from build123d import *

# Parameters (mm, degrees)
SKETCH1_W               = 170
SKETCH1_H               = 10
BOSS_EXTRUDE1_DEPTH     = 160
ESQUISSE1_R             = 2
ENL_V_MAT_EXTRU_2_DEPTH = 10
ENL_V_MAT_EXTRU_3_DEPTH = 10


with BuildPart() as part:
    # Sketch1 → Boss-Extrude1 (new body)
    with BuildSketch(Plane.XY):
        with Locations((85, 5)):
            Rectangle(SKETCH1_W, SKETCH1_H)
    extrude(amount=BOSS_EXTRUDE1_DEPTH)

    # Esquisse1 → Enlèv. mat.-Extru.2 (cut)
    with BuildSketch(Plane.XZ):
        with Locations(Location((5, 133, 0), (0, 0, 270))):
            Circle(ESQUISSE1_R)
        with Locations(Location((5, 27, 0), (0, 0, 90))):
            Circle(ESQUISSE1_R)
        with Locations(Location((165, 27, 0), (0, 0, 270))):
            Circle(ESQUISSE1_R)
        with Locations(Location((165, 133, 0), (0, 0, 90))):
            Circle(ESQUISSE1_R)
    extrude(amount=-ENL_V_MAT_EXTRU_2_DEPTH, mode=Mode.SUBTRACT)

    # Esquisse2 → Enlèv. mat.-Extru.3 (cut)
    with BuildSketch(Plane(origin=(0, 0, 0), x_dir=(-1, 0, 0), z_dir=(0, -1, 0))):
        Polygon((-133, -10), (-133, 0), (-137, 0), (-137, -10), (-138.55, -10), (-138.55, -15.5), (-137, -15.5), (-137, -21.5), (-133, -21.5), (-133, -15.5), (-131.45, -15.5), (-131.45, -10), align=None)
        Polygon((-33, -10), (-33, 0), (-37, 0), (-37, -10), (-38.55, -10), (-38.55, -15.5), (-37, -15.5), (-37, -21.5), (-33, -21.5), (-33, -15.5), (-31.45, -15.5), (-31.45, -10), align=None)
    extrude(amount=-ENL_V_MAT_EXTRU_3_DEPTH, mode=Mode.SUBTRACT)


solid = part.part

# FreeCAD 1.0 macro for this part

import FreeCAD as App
import Part
import Sketcher
Q = App.Units.Quantity


def add_polygon(sketch, points):
    """Adds a closed chain of lines whose ends are joined by coincident constraints."""
    first, n = sketch.GeometryCount, len(points)
    for a, b in zip(points, points[1:] + points[:1]):
        sketch.addGeometry(Part.LineSegment(App.Vector(*a, 0), App.Vector(*b, 0)), False)
    for i in range(n):
        sketch.addConstraint(Sketcher.Constraint("Coincident", first + i, 2, first + (i + 1) % n, 1))

doc = App.newDocument("Part")
body = doc.addObject("PartDesign::Body", "Body")

sketch1 = body.newObject("Sketcher::SketchObject", "Sketch")
sketch1.AttachmentSupport = (doc.getObject("XY_Plane"), [""])
sketch1.MapMode = "FlatFace"
add_polygon(sketch1, [(0, 10), (0, 0), (170, 0), (170, 10)])
sketch1.addConstraint(Sketcher.Constraint("Vertical", 0))
sketch1.addConstraint(Sketcher.Constraint("Horizontal", 1))
sketch1.addConstraint(Sketcher.Constraint("Vertical", 2))
sketch1.addConstraint(Sketcher.Constraint("Horizontal", 3))
sketch1.addConstraint(Sketcher.Constraint("Coincident", 0, 2, -1, 1))
sketch1.addConstraint(Sketcher.Constraint("DistanceX", 1, 1, 1, 2, Q("170 mm")))
sketch1.addConstraint(Sketcher.Constraint("DistanceY", 0, 2, 0, 1, Q("10 mm")))
pad1 = body.newObject("PartDesign::Pad", "Pad")
pad1.Profile = sketch1
pad1.Length = 160

sketch2 = body.newObject("Sketcher::SketchObject", "Sketch001")
sketch2.AttachmentSupport = (doc.getObject("XZ_Plane"), [""])
sketch2.MapMode = "FlatFace"
sketch2.addGeometry(Part.Circle(App.Vector(5, 133, 0), App.Vector(0, 0, 1), 2), False)
sketch2.addGeometry(Part.Circle(App.Vector(5, 27, 0), App.Vector(0, 0, 1), 2), False)
sketch2.addGeometry(Part.Circle(App.Vector(165, 27, 0), App.Vector(0, 0, 1), 2), False)
sketch2.addGeometry(Part.Circle(App.Vector(165, 133, 0), App.Vector(0, 0, 1), 2), False)
sketch2.addConstraint(Sketcher.Constraint("Equal", 0, 1))
sketch2.addConstraint(Sketcher.Constraint("Equal", 1, 2))
sketch2.addConstraint(Sketcher.Constraint("Equal", 2, 3))
sketch2.addConstraint(Sketcher.Constraint("Horizontal", 1, 3, 2, 3))
sketch2.addConstraint(Sketcher.Constraint("Horizontal", 0, 3, 3, 3))
sketch2.addConstraint(Sketcher.Constraint("Vertical", 0, 3, 1, 3))
sketch2.addConstraint(Sketcher.Constraint("Vertical", 2, 3, 3, 3))
sketch2.addConstraint(Sketcher.Constraint("Diameter", 0, Q("4 mm")))
sketch2.addConstraint(Sketcher.Constraint("DistanceX", -1, 1, 0, 3, Q("5 mm")))
sketch2.addConstraint(Sketcher.Constraint("DistanceY", -1, 1, 0, 3, Q("133 mm")))
sketch2.addConstraint(Sketcher.Constraint("DistanceY", -1, 1, 1, 3, Q("27 mm")))
sketch2.addConstraint(Sketcher.Constraint("DistanceX", -1, 1, 2, 3, Q("165 mm")))
pocket1 = body.newObject("PartDesign::Pocket", "Pocket")
pocket1.Profile = sketch2
pocket1.Length = 10

sketch3 = body.newObject("Sketcher::SketchObject", "Sketch002")
sketch3.AttachmentSupport = (doc.getObject("XZ_Plane"), [""])
sketch3.MapMode = "FlatFace"
add_polygon(sketch3, [(133, 10), (133, 0), (137, 0), (137, 10), (138.55, 10), (138.55, 15.5), (137, 15.5), (137, 21.5), (133, 21.5), (133, 15.5), (131.45, 15.5), (131.45, 10)])
add_polygon(sketch3, [(33, 10), (33, 0), (37, 0), (37, 10), (38.55, 10), (38.55, 15.5), (37, 15.5), (37, 21.5), (33, 21.5), (33, 15.5), (31.45, 15.5), (31.45, 10)])
sketch3.addConstraint(Sketcher.Constraint("Vertical", 0))
sketch3.addConstraint(Sketcher.Constraint("Horizontal", 1))
sketch3.addConstraint(Sketcher.Constraint("Vertical", 2))
sketch3.addConstraint(Sketcher.Constraint("Horizontal", 3))
sketch3.addConstraint(Sketcher.Constraint("Vertical", 4))
sketch3.addConstraint(Sketcher.Constraint("Horizontal", 5))
sketch3.addConstraint(Sketcher.Constraint("Vertical", 6))
sketch3.addConstraint(Sketcher.Constraint("Horizontal", 7))
sketch3.addConstraint(Sketcher.Constraint("Vertical", 8))
sketch3.addConstraint(Sketcher.Constraint("Horizontal", 9))
sketch3.addConstraint(Sketcher.Constraint("Vertical", 10))
sketch3.addConstraint(Sketcher.Constraint("Horizontal", 11))
sketch3.addConstraint(Sketcher.Constraint("Vertical", 12))
sketch3.addConstraint(Sketcher.Constraint("Horizontal", 13))
sketch3.addConstraint(Sketcher.Constraint("Vertical", 14))
sketch3.addConstraint(Sketcher.Constraint("Horizontal", 15))
sketch3.addConstraint(Sketcher.Constraint("Vertical", 16))
sketch3.addConstraint(Sketcher.Constraint("Horizontal", 17))
sketch3.addConstraint(Sketcher.Constraint("Vertical", 18))
sketch3.addConstraint(Sketcher.Constraint("Horizontal", 19))
sketch3.addConstraint(Sketcher.Constraint("Vertical", 20))
sketch3.addConstraint(Sketcher.Constraint("Horizontal", 21))
sketch3.addConstraint(Sketcher.Constraint("Vertical", 22))
sketch3.addConstraint(Sketcher.Constraint("Horizontal", 23))
sketch3.addConstraint(Sketcher.Constraint("PointOnObject", 0, 2, -1))
sketch3.addConstraint(Sketcher.Constraint("PointOnObject", 12, 2, -1))
sketch3.addConstraint(Sketcher.Constraint("Horizontal", 5, 2, 8, 2))
sketch3.addConstraint(Sketcher.Constraint("Horizontal", 3, 2, 10, 2))
sketch3.addConstraint(Sketcher.Constraint("Horizontal", 11, 2, 14, 2))
sketch3.addConstraint(Sketcher.Constraint("Horizontal", 9, 2, 16, 2))
sketch3.addConstraint(Sketcher.Constraint("Horizontal", 7, 2, 18, 2))
sketch3.addConstraint(Sketcher.Constraint("Horizontal", 17, 2, 20, 2))
sketch3.addConstraint(Sketcher.Constraint("Horizontal", 15, 2, 22, 2))
sketch3.addConstraint(Sketcher.Constraint("Vertical", 2, 2, 5, 2))
sketch3.addConstraint(Sketcher.Constraint("Vertical", 0, 2, 7, 2))
sketch3.addConstraint(Sketcher.Constraint("Vertical", 14, 2, 17, 2))
sketch3.addConstraint(Sketcher.Constraint("Vertical", 12, 2, 19, 2))
sketch3.addConstraint(Sketcher.Constraint("Equal", 5, 9))
sketch3.addConstraint(Sketcher.Constraint("Equal", 7, 13))
sketch3.addConstraint(Sketcher.Constraint("Equal", 11, 15))
sketch3.addConstraint(Sketcher.Constraint("Equal", 17, 21))
sketch3.addConstraint(Sketcher.Constraint("DistanceX", 1, 1, 1, 2, Q("4 mm")))
sketch3.addConstraint(Sketcher.Constraint("DistanceY", 0, 2, 0, 1, Q("10 mm")))
sketch3.addConstraint(Sketcher.Constraint("DistanceY", 6, 1, 6, 2, Q("6 mm")))
sketch3.addConstraint(Sketcher.Constraint("DistanceY", 4, 1, 4, 2, Q("5.5 mm")))
sketch3.addConstraint(Sketcher.Constraint("DistanceX", -1, 1, 0, 2, Q("133 mm")))
sketch3.addConstraint(Sketcher.Constraint("DistanceX", -1, 1, 12, 2, Q("33 mm")))
sketch3.addConstraint(Sketcher.Constraint("DistanceX", 3, 1, 3, 2, Q("1.55 mm")))
pocket2 = body.newObject("PartDesign::Pocket", "Pocket001")
pocket2.Profile = sketch3
pocket2.Length = 10

doc.recompute()
